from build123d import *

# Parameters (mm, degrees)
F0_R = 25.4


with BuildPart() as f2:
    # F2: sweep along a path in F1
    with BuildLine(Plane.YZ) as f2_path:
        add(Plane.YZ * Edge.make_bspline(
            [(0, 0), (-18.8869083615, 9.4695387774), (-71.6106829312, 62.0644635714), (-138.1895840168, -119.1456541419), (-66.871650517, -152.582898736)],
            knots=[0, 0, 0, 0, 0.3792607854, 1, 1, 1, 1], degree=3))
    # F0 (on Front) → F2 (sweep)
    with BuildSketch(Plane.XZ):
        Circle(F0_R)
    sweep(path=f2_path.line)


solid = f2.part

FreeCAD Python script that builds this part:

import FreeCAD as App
import Part
import Sketcher

V = App.Vector
Q = App.Units.Quantity

doc = App.newDocument("Part")
body = doc.addObject("PartDesign::Body", "Body")

# Sketch on XZ plane
sketch1 = doc.addObject("Sketcher::SketchObject", "Sketch")
body.addObject(sketch1)
sketch1.AttachmentSupport = (doc.XZ_Plane, [""])
sketch1.MapMode = "FlatFace"
sketch1.addGeometry(Part.Circle(V(0, 0, 0), V(0, 0, 1), 25), False)
sketch1.addConstraint([
    Sketcher.Constraint("Coincident", 0, 3, -1, 1),
    Sketcher.Constraint("Diameter", 0, Q("2 in")),
])

# Sketch on YZ plane
sketch2 = doc.addObject("Sketcher::SketchObject", "Sketch001")
body.addObject(sketch2)
sketch2.AttachmentSupport = (doc.YZ_Plane, [""])
sketch2.MapMode = "FlatFace"
sketch2.addGeometry(Part.BSplineCurve([V(0, 0, 0), V(-18.886908, 9.469539, 0), V(-71.610683, 62.064464, 0), V(-138.189584, -119.145654, 0), V(-66.871651, -152.582899, 0)], [4, 1, 4], [0, 0.379260785, 1], False, 3, [1, 1, 1, 1, 1], False), False)
sketch2.addConstraint(Sketcher.Constraint("Block", 0))
doc.recompute()

additivepipe = doc.addObject("PartDesign::AdditivePipe", "AdditivePipe")
body.addObject(additivepipe)
additivepipe.Profile = sketch1
additivepipe.Spine = (sketch2, ["Edge1"])

doc.recompute()
